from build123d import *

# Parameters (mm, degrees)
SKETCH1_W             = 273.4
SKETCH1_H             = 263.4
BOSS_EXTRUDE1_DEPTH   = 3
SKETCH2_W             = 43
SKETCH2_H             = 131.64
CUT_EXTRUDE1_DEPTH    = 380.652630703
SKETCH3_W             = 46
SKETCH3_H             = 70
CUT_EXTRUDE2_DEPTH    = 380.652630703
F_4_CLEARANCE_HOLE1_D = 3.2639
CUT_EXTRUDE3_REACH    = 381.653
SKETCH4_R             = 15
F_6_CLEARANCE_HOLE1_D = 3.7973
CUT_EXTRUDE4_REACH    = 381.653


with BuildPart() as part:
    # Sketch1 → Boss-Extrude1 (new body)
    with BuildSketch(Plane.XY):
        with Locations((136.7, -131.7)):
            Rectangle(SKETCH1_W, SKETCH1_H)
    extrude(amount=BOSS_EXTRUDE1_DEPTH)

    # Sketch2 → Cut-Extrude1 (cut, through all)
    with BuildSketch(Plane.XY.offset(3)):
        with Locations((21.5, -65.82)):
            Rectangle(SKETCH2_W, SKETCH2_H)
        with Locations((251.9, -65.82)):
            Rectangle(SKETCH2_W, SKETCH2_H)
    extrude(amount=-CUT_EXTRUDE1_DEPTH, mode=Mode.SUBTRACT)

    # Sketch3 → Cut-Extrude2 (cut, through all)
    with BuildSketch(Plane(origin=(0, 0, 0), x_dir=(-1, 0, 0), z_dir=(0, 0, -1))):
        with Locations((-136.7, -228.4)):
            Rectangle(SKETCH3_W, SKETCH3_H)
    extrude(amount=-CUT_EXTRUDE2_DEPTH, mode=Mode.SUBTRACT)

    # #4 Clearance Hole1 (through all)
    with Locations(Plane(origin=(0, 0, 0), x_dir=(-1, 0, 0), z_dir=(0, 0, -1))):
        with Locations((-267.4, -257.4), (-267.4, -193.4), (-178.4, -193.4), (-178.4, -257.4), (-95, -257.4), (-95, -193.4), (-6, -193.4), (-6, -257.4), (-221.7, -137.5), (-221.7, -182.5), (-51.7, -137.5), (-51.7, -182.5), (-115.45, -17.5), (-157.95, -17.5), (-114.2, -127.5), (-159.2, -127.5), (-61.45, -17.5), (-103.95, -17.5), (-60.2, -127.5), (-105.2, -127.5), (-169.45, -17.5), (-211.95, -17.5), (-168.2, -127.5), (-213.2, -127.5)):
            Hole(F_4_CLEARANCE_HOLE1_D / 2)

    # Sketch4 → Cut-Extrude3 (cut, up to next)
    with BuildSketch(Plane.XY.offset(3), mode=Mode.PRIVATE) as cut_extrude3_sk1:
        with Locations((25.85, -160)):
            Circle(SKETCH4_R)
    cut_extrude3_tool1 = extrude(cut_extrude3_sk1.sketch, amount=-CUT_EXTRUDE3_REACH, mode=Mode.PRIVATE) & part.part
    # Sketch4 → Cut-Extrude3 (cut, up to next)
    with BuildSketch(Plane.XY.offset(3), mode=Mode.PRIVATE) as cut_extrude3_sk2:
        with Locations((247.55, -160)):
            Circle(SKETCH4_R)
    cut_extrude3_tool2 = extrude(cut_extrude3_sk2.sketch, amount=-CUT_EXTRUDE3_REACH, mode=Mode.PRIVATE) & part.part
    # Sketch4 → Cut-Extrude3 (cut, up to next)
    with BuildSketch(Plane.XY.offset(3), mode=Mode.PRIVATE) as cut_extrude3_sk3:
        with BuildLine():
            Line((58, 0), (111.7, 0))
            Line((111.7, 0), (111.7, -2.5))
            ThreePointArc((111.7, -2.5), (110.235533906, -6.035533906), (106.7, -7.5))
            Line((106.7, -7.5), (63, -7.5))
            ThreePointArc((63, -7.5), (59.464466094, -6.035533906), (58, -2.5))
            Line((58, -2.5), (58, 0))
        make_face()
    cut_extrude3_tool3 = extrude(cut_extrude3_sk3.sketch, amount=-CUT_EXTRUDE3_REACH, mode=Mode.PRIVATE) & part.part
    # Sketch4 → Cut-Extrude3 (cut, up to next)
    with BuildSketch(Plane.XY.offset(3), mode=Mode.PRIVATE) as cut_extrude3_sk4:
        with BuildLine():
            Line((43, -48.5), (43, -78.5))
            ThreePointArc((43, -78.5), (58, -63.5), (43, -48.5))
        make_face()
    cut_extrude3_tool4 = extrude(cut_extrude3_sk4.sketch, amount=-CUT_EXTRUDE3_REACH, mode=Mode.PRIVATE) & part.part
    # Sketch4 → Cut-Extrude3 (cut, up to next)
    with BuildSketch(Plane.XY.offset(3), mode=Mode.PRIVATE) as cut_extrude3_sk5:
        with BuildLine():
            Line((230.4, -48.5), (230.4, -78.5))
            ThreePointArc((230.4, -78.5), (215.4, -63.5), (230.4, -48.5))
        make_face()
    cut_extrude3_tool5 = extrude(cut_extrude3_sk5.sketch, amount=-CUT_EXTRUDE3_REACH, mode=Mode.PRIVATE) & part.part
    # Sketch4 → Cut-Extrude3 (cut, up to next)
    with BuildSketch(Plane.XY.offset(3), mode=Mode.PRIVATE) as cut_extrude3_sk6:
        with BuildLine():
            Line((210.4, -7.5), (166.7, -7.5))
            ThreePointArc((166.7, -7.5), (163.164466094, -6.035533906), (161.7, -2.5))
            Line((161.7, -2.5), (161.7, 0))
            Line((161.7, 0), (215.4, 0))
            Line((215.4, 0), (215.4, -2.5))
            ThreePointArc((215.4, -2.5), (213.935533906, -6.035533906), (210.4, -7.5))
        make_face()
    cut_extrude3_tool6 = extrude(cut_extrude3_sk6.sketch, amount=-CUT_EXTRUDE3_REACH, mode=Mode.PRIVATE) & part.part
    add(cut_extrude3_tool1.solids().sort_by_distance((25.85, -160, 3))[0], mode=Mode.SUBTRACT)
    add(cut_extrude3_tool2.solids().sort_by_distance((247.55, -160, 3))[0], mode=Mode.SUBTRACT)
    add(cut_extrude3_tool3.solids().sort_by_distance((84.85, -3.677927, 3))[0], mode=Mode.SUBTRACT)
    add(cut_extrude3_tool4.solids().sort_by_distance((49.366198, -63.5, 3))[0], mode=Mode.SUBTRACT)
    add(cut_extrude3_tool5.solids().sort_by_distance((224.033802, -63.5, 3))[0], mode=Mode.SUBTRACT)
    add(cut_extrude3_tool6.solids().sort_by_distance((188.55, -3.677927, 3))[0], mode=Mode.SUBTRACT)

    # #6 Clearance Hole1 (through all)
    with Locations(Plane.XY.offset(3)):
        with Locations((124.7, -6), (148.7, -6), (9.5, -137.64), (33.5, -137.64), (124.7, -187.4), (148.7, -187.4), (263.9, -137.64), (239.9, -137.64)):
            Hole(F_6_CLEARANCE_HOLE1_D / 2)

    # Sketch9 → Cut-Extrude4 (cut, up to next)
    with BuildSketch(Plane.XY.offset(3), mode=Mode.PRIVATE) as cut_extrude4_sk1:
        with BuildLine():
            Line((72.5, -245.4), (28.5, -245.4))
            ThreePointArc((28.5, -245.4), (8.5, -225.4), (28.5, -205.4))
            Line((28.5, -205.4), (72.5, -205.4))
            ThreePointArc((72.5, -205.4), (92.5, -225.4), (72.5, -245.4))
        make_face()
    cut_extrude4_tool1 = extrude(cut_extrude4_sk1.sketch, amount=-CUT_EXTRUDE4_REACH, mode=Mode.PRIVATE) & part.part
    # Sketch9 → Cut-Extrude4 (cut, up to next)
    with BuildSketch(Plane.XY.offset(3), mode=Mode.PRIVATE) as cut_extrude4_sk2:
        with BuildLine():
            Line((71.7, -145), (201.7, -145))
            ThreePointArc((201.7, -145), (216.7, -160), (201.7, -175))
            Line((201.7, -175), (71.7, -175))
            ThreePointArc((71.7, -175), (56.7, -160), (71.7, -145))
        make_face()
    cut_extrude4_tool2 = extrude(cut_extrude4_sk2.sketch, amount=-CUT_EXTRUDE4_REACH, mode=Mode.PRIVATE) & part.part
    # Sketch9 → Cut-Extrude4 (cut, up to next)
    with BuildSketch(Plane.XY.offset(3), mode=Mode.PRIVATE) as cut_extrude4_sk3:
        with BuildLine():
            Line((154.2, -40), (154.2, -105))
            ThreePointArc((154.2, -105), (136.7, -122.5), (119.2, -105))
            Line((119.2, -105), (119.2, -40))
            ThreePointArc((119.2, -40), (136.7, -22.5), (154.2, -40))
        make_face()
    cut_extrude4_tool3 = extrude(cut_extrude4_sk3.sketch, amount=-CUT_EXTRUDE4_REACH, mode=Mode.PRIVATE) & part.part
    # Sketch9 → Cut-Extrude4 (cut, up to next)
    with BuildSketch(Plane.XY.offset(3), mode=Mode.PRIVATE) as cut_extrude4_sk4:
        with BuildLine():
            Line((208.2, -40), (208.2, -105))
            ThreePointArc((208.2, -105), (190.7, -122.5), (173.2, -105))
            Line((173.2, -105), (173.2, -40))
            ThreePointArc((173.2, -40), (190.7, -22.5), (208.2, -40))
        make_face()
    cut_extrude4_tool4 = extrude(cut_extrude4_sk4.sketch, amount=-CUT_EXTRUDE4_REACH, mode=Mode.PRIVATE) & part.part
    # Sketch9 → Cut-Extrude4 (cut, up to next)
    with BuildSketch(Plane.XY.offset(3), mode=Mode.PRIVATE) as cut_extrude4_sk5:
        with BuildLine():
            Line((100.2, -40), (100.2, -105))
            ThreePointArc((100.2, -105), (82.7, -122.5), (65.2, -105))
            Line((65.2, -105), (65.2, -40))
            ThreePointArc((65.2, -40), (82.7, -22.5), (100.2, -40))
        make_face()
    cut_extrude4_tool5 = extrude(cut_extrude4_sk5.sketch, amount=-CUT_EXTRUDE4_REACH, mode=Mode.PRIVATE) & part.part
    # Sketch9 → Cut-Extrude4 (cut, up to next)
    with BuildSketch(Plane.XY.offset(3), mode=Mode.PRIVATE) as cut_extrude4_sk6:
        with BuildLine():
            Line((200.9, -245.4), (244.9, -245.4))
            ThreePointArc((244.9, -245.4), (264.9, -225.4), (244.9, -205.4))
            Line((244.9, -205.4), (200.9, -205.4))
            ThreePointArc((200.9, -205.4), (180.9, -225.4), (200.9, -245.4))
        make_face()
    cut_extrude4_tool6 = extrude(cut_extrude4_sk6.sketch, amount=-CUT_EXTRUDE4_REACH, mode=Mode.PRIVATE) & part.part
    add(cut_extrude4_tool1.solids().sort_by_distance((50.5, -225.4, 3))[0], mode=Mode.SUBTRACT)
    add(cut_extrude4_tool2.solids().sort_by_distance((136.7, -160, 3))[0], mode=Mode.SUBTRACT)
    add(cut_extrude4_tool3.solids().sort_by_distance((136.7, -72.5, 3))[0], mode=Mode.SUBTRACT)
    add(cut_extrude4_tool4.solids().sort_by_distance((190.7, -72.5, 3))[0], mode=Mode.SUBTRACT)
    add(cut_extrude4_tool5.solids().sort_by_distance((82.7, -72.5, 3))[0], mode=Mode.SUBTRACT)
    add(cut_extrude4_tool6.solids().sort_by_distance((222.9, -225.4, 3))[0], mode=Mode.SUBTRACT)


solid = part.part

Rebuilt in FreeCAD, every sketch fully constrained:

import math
import FreeCAD as App
import Part
import Sketcher

V = App.Vector


def add_polygon(sketch, points):
    """Adds a closed chain of lines whose ends are joined by coincident constraints."""
    first, n = sketch.GeometryCount, len(points)
    for a, b in zip(points, points[1:] + points[:1]):
        sketch.addGeometry(Part.LineSegment(App.Vector(*a, 0), App.Vector(*b, 0)), False)
    for i in range(n):
        sketch.addConstraint(Sketcher.Constraint("Coincident", first + i, 2, first + (i + 1) % n, 1))

doc = App.newDocument("Part")
params = doc.addObject("Spreadsheet::Sheet", "Params")
for row, (alias, value) in enumerate([
    ("sketch1_width", "273.4 mm"),
    ("sketch1_height", "263.4 mm"),
    ("pad1_length", "3 mm"),
    ("sketch2_width", "43 mm"),
    ("sketch2_height", "131.64 mm"),
    ("sketch3_width", "46 mm"),
    ("sketch3_height", "70 mm"),
    ("hole_diameter", "3.2639 mm"),
    ("sketch5_diameter", "30 mm"),
    ("sketch6_diameter", "30 mm"),
    ("sketch7_radius", "5 mm"),
    ("sketch7_width", "53.7 mm"),
    ("sketch7_height", "2.5 mm"),
    ("sketch8_radius", "15 mm"),
    ("sketch9_radius", "15 mm"),
    ("sketch10_radius", "5 mm"),
    ("sketch10_width", "43.7 mm"),
    ("sketch10_height", "2.5 mm"),
    ("hole2_diameter", "3.7973 mm"),
    ("sketch12_radius", "20 mm"),
    ("sketch12_width", "44 mm"),
    ("sketch13_radius", "15 mm"),
    ("sketch13_width", "130 mm"),
    ("sketch14_radius", "17.5 mm"),
    ("sketch14_height", "65 mm"),
    ("sketch15_radius", "17.5 mm"),
    ("sketch15_height", "65 mm"),
    ("sketch16_radius", "17.5 mm"),
    ("sketch16_height", "65 mm"),
    ("sketch17_radius", "20 mm"),
    ("sketch17_width", "44 mm"),
], start=1):
    params.set(f"A{row}", alias)
    params.set(f"B{row}", "=" + value)
    params.setAlias(f"B{row}", alias)

body = doc.addObject("PartDesign::Body", "Body")

# Sketch on XY plane
sketch1 = body.newObject("Sketcher::SketchObject", "Sketch")
sketch1.AttachmentSupport = (doc.getObject("XY_Plane"), [""])
sketch1.MapMode = "FlatFace"
add_polygon(sketch1, [(0, 0), (0, -263), (273, -263), (273, 0)])  # lines 0-3
sketch1.addConstraint([
    Sketcher.Constraint("Vertical", 0),
    Sketcher.Constraint("Horizontal", 1),
    Sketcher.Constraint("Vertical", 2),
    Sketcher.Constraint("Horizontal", 3),
    Sketcher.Constraint("Coincident", 3, 2, -1, 1),
    Sketcher.Constraint("DistanceX", 1, 1, 1, 2, 273.4),
    Sketcher.Constraint("DistanceY", 0, 2, 0, 1, 263.4),
])
sketch1.setExpression("Constraints[9]", "Params.sketch1_width")
sketch1.setExpression("Constraints[10]", "Params.sketch1_height")
pad1 = body.newObject("PartDesign::Pad", "Pad")
pad1.Profile = sketch1
pad1.setExpression("Length", "Params.pad1_length")

# Sketch on XY plane
sketch2 = body.newObject("Sketcher::SketchObject", "Sketch001")
sketch2.AttachmentSupport = (doc.getObject("XY_Plane"), [""])
sketch2.MapMode = "FlatFace"
sketch2.AttachmentOffset = App.Placement(V(0, 0, 3), App.Rotation())
add_polygon(sketch2, [(0, 0), (0, -132), (43, -132), (43, 0)])  # lines 0-3
add_polygon(sketch2, [(230, 0), (230, -132), (273, -132), (273, 0)])  # lines 4-7
sketch2.addConstraint([
    Sketcher.Constraint("Vertical", 0),
    Sketcher.Constraint("Horizontal", 1),
    Sketcher.Constraint("Vertical", 2),
    Sketcher.Constraint("Horizontal", 3),
    Sketcher.Constraint("Vertical", 4),
    Sketcher.Constraint("Horizontal", 5),
    Sketcher.Constraint("Vertical", 6),
    Sketcher.Constraint("Horizontal", 7),
    Sketcher.Constraint("Coincident", 3, 2, -1, 1),
    Sketcher.Constraint("PointOnObject", 6, 2, -1),
    Sketcher.Constraint("Horizontal", 1, 2, 4, 2),
    Sketcher.Constraint("Equal", 3, 5),
    Sketcher.Constraint("DistanceX", 1, 1, 1, 2, 43.0),
    Sketcher.Constraint("DistanceY", 0, 2, 0, 1, 131.64),
    Sketcher.Constraint("DistanceX", -1, 1, 4, 2, 230.4),
])
sketch2.setExpression("Constraints[20]", "Params.sketch2_width")
sketch2.setExpression("Constraints[21]", "Params.sketch2_height")
pocket1 = body.newObject("PartDesign::Pocket", "Pocket")
pocket1.Profile = sketch2
pocket1.Type = "ThroughAll"

# Sketch on XY plane
sketch3 = body.newObject("Sketcher::SketchObject", "Sketch002")
sketch3.AttachmentSupport = (doc.getObject("XY_Plane"), [""])
sketch3.MapMode = "FlatFace"
add_polygon(sketch3, [(160, -193), (160, -263), (114, -263), (114, -193)])  # lines 0-3
sketch3.addConstraint([
    Sketcher.Constraint("Vertical", 0),
    Sketcher.Constraint("Horizontal", 1),
    Sketcher.Constraint("Vertical", 2),
    Sketcher.Constraint("Horizontal", 3),
    Sketcher.Constraint("DistanceX", 1, 2, 1, 1, 46.0),
    Sketcher.Constraint("DistanceY", 0, 2, 0, 1, 70.0),
    Sketcher.Constraint("DistanceX", -1, 1, 0, 2, 159.7),
    Sketcher.Constraint("DistanceY", 0, 2, -1, 1, 263.4),
])
sketch3.setExpression("Constraints[8]", "Params.sketch3_width")
sketch3.setExpression("Constraints[9]", "Params.sketch3_height")
pocket2 = body.newObject("PartDesign::Pocket", "Pocket001")
pocket2.Profile = sketch3
pocket2.Type = "ThroughAll"
pocket2.Reversed = True

# Sketch on XY plane
sketch4 = body.newObject("Sketcher::SketchObject", "Sketch003")
sketch4.AttachmentSupport = (doc.getObject("XY_Plane"), [""])
sketch4.MapMode = "FlatFace"
sketch4.addGeometry([
    Part.Circle(V(267.4, -257.4, 0), V(0, 0, 1), 1.6),  # 0
    Part.Circle(V(267.4, -193.4, 0), V(0, 0, 1), 1.6),  # 1
    Part.Circle(V(178.4, -193.4, 0), V(0, 0, 1), 1.6),  # 2
    Part.Circle(V(178.4, -257.4, 0), V(0, 0, 1), 1.6),  # 3
    Part.Circle(V(95, -257.4, 0), V(0, 0, 1), 1.6),  # 4
    Part.Circle(V(95, -193.4, 0), V(0, 0, 1), 1.6),  # 5
    Part.Circle(V(6, -193.4, 0), V(0, 0, 1), 1.6),  # 6
    Part.Circle(V(6, -257.4, 0), V(0, 0, 1), 1.6),  # 7
    Part.Circle(V(221.7, -137.5, 0), V(0, 0, 1), 1.6),  # 8
    Part.Circle(V(221.7, -182.5, 0), V(0, 0, 1), 1.6),  # 9
    Part.Circle(V(51.7, -137.5, 0), V(0, 0, 1), 1.6),  # 10
    Part.Circle(V(51.7, -182.5, 0), V(0, 0, 1), 1.6),  # 11
    Part.Circle(V(115.5, -17.5, 0), V(0, 0, 1), 1.6),  # 12
    Part.Circle(V(157.9, -17.5, 0), V(0, 0, 1), 1.6),  # 13
    Part.Circle(V(114.2, -127.5, 0), V(0, 0, 1), 1.6),  # 14
    Part.Circle(V(159.2, -127.5, 0), V(0, 0, 1), 1.6),  # 15
    Part.Circle(V(61.5, -17.5, 0), V(0, 0, 1), 1.6),  # 16
    Part.Circle(V(104, -17.5, 0), V(0, 0, 1), 1.6),  # 17
    Part.Circle(V(60.2, -127.5, 0), V(0, 0, 1), 1.6),  # 18
    Part.Circle(V(105.2, -127.5, 0), V(0, 0, 1), 1.6),  # 19
    Part.Circle(V(169.4, -17.5, 0), V(0, 0, 1), 1.6),  # 20
    Part.Circle(V(211.9, -17.5, 0), V(0, 0, 1), 1.6),  # 21
    Part.Circle(V(168.2, -127.5, 0), V(0, 0, 1), 1.6),  # 22
    Part.Circle(V(213.2, -127.5, 0), V(0, 0, 1), 1.6),  # 23
], False)
sketch4.addConstraint([
    Sketcher.Constraint("Equal", 0, 1),
    Sketcher.Constraint("Equal", 1, 2),
    Sketcher.Constraint("Equal", 2, 3),
    Sketcher.Constraint("Equal", 3, 4),
    Sketcher.Constraint("Equal", 4, 5),
    Sketcher.Constraint("Equal", 5, 6),
    Sketcher.Constraint("Equal", 6, 7),
    Sketcher.Constraint("Equal", 7, 8),
    Sketcher.Constraint("Equal", 8, 9),
    Sketcher.Constraint("Equal", 9, 10),
    Sketcher.Constraint("Equal", 10, 11),
    Sketcher.Constraint("Equal", 11, 12),
    Sketcher.Constraint("Equal", 12, 13),
    Sketcher.Constraint("Equal", 13, 14),
    Sketcher.Constraint("Equal", 14, 15),
    Sketcher.Constraint("Equal", 15, 16),
    Sketcher.Constraint("Equal", 16, 17),
    Sketcher.Constraint("Equal", 17, 18),
    Sketcher.Constraint("Equal", 18, 19),
    Sketcher.Constraint("Equal", 19, 20),
    Sketcher.Constraint("Equal", 20, 21),
    Sketcher.Constraint("Equal", 21, 22),
    Sketcher.Constraint("Equal", 22, 23),
    Sketcher.Constraint("Horizontal", 1, 3, 2, 3),
    Sketcher.Constraint("Horizontal", 0, 3, 3, 3),
    Sketcher.Constraint("Horizontal", 3, 3, 4, 3),
    Sketcher.Constraint("Horizontal", 2, 3, 5, 3),
    Sketcher.Constraint("Horizontal", 5, 3, 6, 3),
    Sketcher.Constraint("Horizontal", 4, 3, 7, 3),
    Sketcher.Constraint("Horizontal", 8, 3, 10, 3),
    Sketcher.Constraint("Horizontal", 9, 3, 11, 3),
    Sketcher.Constraint("Horizontal", 12, 3, 13, 3),
    Sketcher.Constraint("Horizontal", 14, 3, 15, 3),
    Sketcher.Constraint("Horizontal", 13, 3, 16, 3),
    Sketcher.Constraint("Horizontal", 16, 3, 17, 3),
    Sketcher.Constraint("Horizontal", 15, 3, 18, 3),
    Sketcher.Constraint("Horizontal", 18, 3, 19, 3),
    Sketcher.Constraint("Horizontal", 17, 3, 20, 3),
    Sketcher.Constraint("Horizontal", 20, 3, 21, 3),
    Sketcher.Constraint("Horizontal", 19, 3, 22, 3),
    Sketcher.Constraint("Horizontal", 22, 3, 23, 3),
    Sketcher.Constraint("Vertical", 0, 3, 1, 3),
    Sketcher.Constraint("Vertical", 2, 3, 3, 3),
    Sketcher.Constraint("Vertical", 4, 3, 5, 3),
    Sketcher.Constraint("Vertical", 6, 3, 7, 3),
    Sketcher.Constraint("Vertical", 8, 3, 9, 3),
    Sketcher.Constraint("Vertical", 10, 3, 11, 3),
    Sketcher.Constraint("DistanceX", -1, 1, 4, 3, 95.0),
    Sketcher.Constraint("DistanceX", -1, 1, 6, 3, 6.0),
    Sketcher.Constraint("DistanceY", 0, 3, 1, 3, 64.0),
    Sketcher.Constraint("DistanceX", 2, 3, 1, 3, 89.0),
    Sketcher.Constraint("DistanceY", 9, 3, 8, 3, 45.0),
    Sketcher.Constraint("DistanceY", 10, 3, 12, 3, 120.0),
    Sketcher.Constraint("DistanceY", 10, 3, 14, 3, 10.0),
    Sketcher.Constraint("DistanceX", 14, 3, 15, 3, 45.0),
    Sketcher.Constraint("DistanceX", 16, 3, 12, 3, 54.0),
    Sketcher.Constraint("DistanceX", 17, 3, 13, 3, 54.0),
    Sketcher.Constraint("DistanceX", 18, 3, 14, 3, 54.0),
    Sketcher.Constraint("DistanceX", 19, 3, 14, 3, 9.0),
    Sketcher.Constraint("DistanceX", 12, 3, 20, 3, 54.0),
    Sketcher.Constraint("DistanceX", 13, 3, 21, 3, 54.0),
    Sketcher.Constraint("DistanceX", 15, 3, 22, 3, 9.0),
    Sketcher.Constraint("DistanceX", 22, 3, 23, 3, 45.0),
    Sketcher.Constraint("Diameter", 0, 3.2639),
    Sketcher.Constraint("DistanceX", -1, 1, 0, 3, 267.4),
    Sketcher.Constraint("DistanceY", 0, 3, -1, 1, 257.4),
    Sketcher.Constraint("DistanceX", -1, 1, 8, 3, 221.7),
    Sketcher.Constraint("DistanceY", 8, 3, -1, 1, 137.5),
    Sketcher.Constraint("DistanceX", -1, 1, 10, 3, 51.7),
    Sketcher.Constraint("DistanceX", -1, 1, 14, 3, 114.2),
    Sketcher.Constraint("DistanceX", 12, 3, 13, 3, 42.5),
    Sketcher.Constraint("DistanceX", -1, 1, 12, 3, 115.45),
])
doc.recompute()
hole = body.newObject("PartDesign::Hole", "Hole")
hole.Profile = sketch4
hole.ThreadType = "None"
hole.setExpression("Diameter", "Params.hole_diameter")
hole.DepthType = "ThroughAll"
hole.Reversed = True

# Sketch on XY plane
sketch5 = body.newObject("Sketcher::SketchObject", "Sketch004")
sketch5.AttachmentSupport = (doc.getObject("XY_Plane"), [""])
sketch5.MapMode = "FlatFace"
sketch5.AttachmentOffset = App.Placement(V(0, 0, 3), App.Rotation())
sketch5.addGeometry(Part.Circle(V(26, -160, 0), V(0, 0, 1), 15), False)
sketch5.addConstraint([
    Sketcher.Constraint("Diameter", 0, 30.0),
    Sketcher.Constraint("DistanceY", 0, 3, -1, 1, 160.0),
    Sketcher.Constraint("DistanceX", -1, 1, 0, 3, 25.85),
])
sketch5.setExpression("Constraints[0]", "Params.sketch5_diameter")
pocket3 = body.newObject("PartDesign::Pocket", "Pocket002")
pocket3.Profile = sketch5
pocket3.Type = "UpToFirst"

# Sketch on XY plane
sketch6 = body.newObject("Sketcher::SketchObject", "Sketch005")
sketch6.AttachmentSupport = (doc.getObject("XY_Plane"), [""])
sketch6.MapMode = "FlatFace"
sketch6.AttachmentOffset = App.Placement(V(0, 0, 3), App.Rotation())
sketch6.addGeometry(Part.Circle(V(248, -160, 0), V(0, 0, 1), 15), False)
sketch6.addConstraint([
    Sketcher.Constraint("Diameter", 0, 30.0),
    Sketcher.Constraint("DistanceY", 0, 3, -1, 1, 160.0),
    Sketcher.Constraint("DistanceX", -1, 1, 0, 3, 247.55),
])
sketch6.setExpression("Constraints[0]", "Params.sketch6_diameter")
pocket4 = body.newObject("PartDesign::Pocket", "Pocket003")
pocket4.Profile = sketch6
pocket4.Type = "UpToFirst"

# Sketch on XY plane
sketch7 = body.newObject("Sketcher::SketchObject", "Sketch006")
sketch7.AttachmentSupport = (doc.getObject("XY_Plane"), [""])
sketch7.MapMode = "FlatFace"
sketch7.AttachmentOffset = App.Placement(V(0, 0, 3), App.Rotation())
sketch7.addGeometry([
    Part.LineSegment(V(111.7, 0, 0), V(58, 0, 0)),  # 0
    Part.LineSegment(V(58, 0, 0), V(58, -2.5, 0)),  # 1
    Part.ArcOfCircle(Part.Circle(V(63, -2.5, 0), V(0, 0, 1), 5), math.radians(180), math.radians(270)),  # 2
    Part.LineSegment(V(63, -7.5, 0), V(106.7, -7.5, 0)),  # 3
    Part.ArcOfCircle(Part.Circle(V(106.7, -2.5, 0), V(0, 0, 1), 5), math.radians(-90), math.radians(0)),  # 4
    Part.LineSegment(V(111.7, -2.5, 0), V(111.7, 0, 0)),  # 5
], False)
sketch7.addConstraint([
    Sketcher.Constraint("Coincident", 0, 2, 1, 1),
    Sketcher.Constraint("Tangent", 1, 2, 2, 1),
    Sketcher.Constraint("Tangent", 2, 2, 3, 1),
    Sketcher.Constraint("Tangent", 3, 2, 4, 1),
    Sketcher.Constraint("Tangent", 4, 2, 5, 1),
    Sketcher.Constraint("Coincident", 5, 2, 0, 1),
    Sketcher.Constraint("Horizontal", 0),
    Sketcher.Constraint("Vertical", 1),
    Sketcher.Constraint("Horizontal", 3),
    Sketcher.Constraint("Vertical", 5),
    Sketcher.Constraint("Equal", 2, 4),
    Sketcher.Constraint("PointOnObject", 0, 2, -1),
    Sketcher.Constraint("Radius", 2, 5.0),
    Sketcher.Constraint("DistanceX", 0, 2, 0, 1, 53.7),
    Sketcher.Constraint("DistanceY", 1, 2, 1, 1, 2.5),
    Sketcher.Constraint("DistanceX", -1, 1, 2, 3, 63.0),
])
sketch7.setExpression("Constraints[12]", "Params.sketch7_radius")
sketch7.setExpression("Constraints[13]", "Params.sketch7_width")
sketch7.setExpression("Constraints[14]", "Params.sketch7_height")
pocket5 = body.newObject("PartDesign::Pocket", "Pocket004")
pocket5.Profile = sketch7
pocket5.Type = "UpToFirst"

# Sketch on XY plane
sketch8 = body.newObject("Sketcher::SketchObject", "Sketch007")
sketch8.AttachmentSupport = (doc.getObject("XY_Plane"), [""])
sketch8.MapMode = "FlatFace"
sketch8.AttachmentOffset = App.Placement(V(0, 0, 3), App.Rotation())
sketch8.addGeometry([
    Part.LineSegment(V(43, -48, 0), V(43, -78, 0)),
    Part.ArcOfCircle(Part.Circle(V(43, -64, 0), V(0, 0, 1), 15), math.radians(-90), math.radians(90)),
], False)
sketch8.addConstraint([
    Sketcher.Constraint("Coincident", 0, 1, 1, 2),
    Sketcher.Constraint("Coincident", 1, 1, 0, 2),
    Sketcher.Constraint("Vertical", 0),
    Sketcher.Constraint("Vertical", 1, 3, 0, 1),
    Sketcher.Constraint("Radius", 1, 15.0),
    Sketcher.Constraint("DistanceX", -1, 1, 1, 3, 43.0),
    Sketcher.Constraint("DistanceY", 1, 3, -1, 1, 63.5),
])
sketch8.setExpression("Constraints[4]", "Params.sketch8_radius")
pocket6 = body.newObject("PartDesign::Pocket", "Pocket005")
pocket6.Profile = sketch8
pocket6.Type = "UpToFirst"

# Sketch on XY plane
sketch9 = body.newObject("Sketcher::SketchObject", "Sketch008")
sketch9.AttachmentSupport = (doc.getObject("XY_Plane"), [""])
sketch9.MapMode = "FlatFace"
sketch9.AttachmentOffset = App.Placement(V(0, 0, 3), App.Rotation())
sketch9.addGeometry([
    Part.LineSegment(V(230, -78, 0), V(230, -48, 0)),
    Part.ArcOfCircle(Part.Circle(V(230, -64, 0), V(0, 0, 1), 15), math.radians(90), math.radians(270)),
], False)
sketch9.addConstraint([
    Sketcher.Constraint("Coincident", 0, 1, 1, 2),
    Sketcher.Constraint("Coincident", 1, 1, 0, 2),
    Sketcher.Constraint("Vertical", 0),
    Sketcher.Constraint("Vertical", 1, 3, 0, 1),
    Sketcher.Constraint("Radius", 1, 15.0),
    Sketcher.Constraint("DistanceX", -1, 1, 1, 3, 230.4),
    Sketcher.Constraint("DistanceY", 1, 3, -1, 1, 63.5),
])
sketch9.setExpression("Constraints[4]", "Params.sketch9_radius")
pocket7 = body.newObject("PartDesign::Pocket", "Pocket006")
pocket7.Profile = sketch9
pocket7.Type = "UpToFirst"

# Sketch on XY plane
sketch10 = body.newObject("Sketcher::SketchObject", "Sketch009")
sketch10.AttachmentSupport = (doc.getObject("XY_Plane"), [""])
sketch10.MapMode = "FlatFace"
sketch10.AttachmentOffset = App.Placement(V(0, 0, 3), App.Rotation())
sketch10.addGeometry([
    Part.LineSegment(V(166.7, -7.5, 0), V(210.4, -7.5, 0)),  # 0
    Part.ArcOfCircle(Part.Circle(V(210.4, -2.5, 0), V(0, 0, 1), 5), math.radians(-90), math.radians(0)),  # 1
    Part.LineSegment(V(215.4, -2.5, 0), V(215.4, 0, 0)),  # 2
    Part.LineSegment(V(215.4, 0, 0), V(161.7, 0, 0)),  # 3
    Part.LineSegment(V(161.7, 0, 0), V(161.7, -2.5, 0)),  # 4
    Part.ArcOfCircle(Part.Circle(V(166.7, -2.5, 0), V(0, 0, 1), 5), math.radians(180), math.radians(270)),  # 5
], False)
sketch10.addConstraint([
    Sketcher.Constraint("Tangent", 0, 2, 1, 1),
    Sketcher.Constraint("Tangent", 1, 2, 2, 1),
    Sketcher.Constraint("Coincident", 2, 2, 3, 1),
    Sketcher.Constraint("Coincident", 3, 2, 4, 1),
    Sketcher.Constraint("Tangent", 4, 2, 5, 1),
    Sketcher.Constraint("Tangent", 5, 2, 0, 1),
    Sketcher.Constraint("Horizontal", 0),
    Sketcher.Constraint("Vertical", 2),
    Sketcher.Constraint("Horizontal", 3),
    Sketcher.Constraint("Vertical", 4),
    Sketcher.Constraint("Equal", 1, 5),
    Sketcher.Constraint("PointOnObject", 2, 2, -1),
    Sketcher.Constraint("Radius", 1, 5.0),
    Sketcher.Constraint("DistanceX", 0, 1, 0, 2, 43.7),
    Sketcher.Constraint("DistanceY", 2, 1, 2, 2, 2.5),
    Sketcher.Constraint("DistanceX", -1, 1, 1, 3, 210.4),
])
sketch10.setExpression("Constraints[12]", "Params.sketch10_radius")
sketch10.setExpression("Constraints[13]", "Params.sketch10_width")
sketch10.setExpression("Constraints[14]", "Params.sketch10_height")
pocket8 = body.newObject("PartDesign::Pocket", "Pocket007")
pocket8.Profile = sketch10
pocket8.Type = "UpToFirst"

# Sketch on XY plane
sketch11 = body.newObject("Sketcher::SketchObject", "Sketch010")
sketch11.AttachmentSupport = (doc.getObject("XY_Plane"), [""])
sketch11.MapMode = "FlatFace"
sketch11.AttachmentOffset = App.Placement(V(0, 0, 3), App.Rotation())
sketch11.addGeometry([
    Part.Circle(V(124.7, -6, 0), V(0, 0, 1), 1.9),  # 0
    Part.Circle(V(148.7, -6, 0), V(0, 0, 1), 1.9),  # 1
    Part.Circle(V(9.5, -137.6, 0), V(0, 0, 1), 1.9),  # 2
    Part.Circle(V(33.5, -137.6, 0), V(0, 0, 1), 1.9),  # 3
    Part.Circle(V(124.7, -187.4, 0), V(0, 0, 1), 1.9),  # 4
    Part.Circle(V(148.7, -187.4, 0), V(0, 0, 1), 1.9),  # 5
    Part.Circle(V(263.9, -137.6, 0), V(0, 0, 1), 1.9),  # 6
    Part.Circle(V(239.9, -137.6, 0), V(0, 0, 1), 1.9),  # 7
], False)
sketch11.addConstraint([
    Sketcher.Constraint("Equal", 0, 1),
    Sketcher.Constraint("Equal", 1, 2),
    Sketcher.Constraint("Equal", 2, 3),
    Sketcher.Constraint("Equal", 3, 4),
    Sketcher.Constraint("Equal", 4, 5),
    Sketcher.Constraint("Equal", 5, 6),
    Sketcher.Constraint("Equal", 6, 7),
    Sketcher.Constraint("Horizontal", 0, 3, 1, 3),
    Sketcher.Constraint("Horizontal", 2, 3, 3, 3),
    Sketcher.Constraint("Horizontal", 4, 3, 5, 3),
    Sketcher.Constraint("Horizontal", 3, 3, 6, 3),
    Sketcher.Constraint("Horizontal", 6, 3, 7, 3),
    Sketcher.Constraint("Vertical", 0, 3, 4, 3),
    Sketcher.Constraint("Vertical", 1, 3, 5, 3),
    Sketcher.Constraint("DistanceY", 0, 3, -1, 1, 6.0),
    Sketcher.Constraint("DistanceX", 0, 3, 1, 3, 24.0),
    Sketcher.Constraint("DistanceX", 2, 3, 3, 3, 24.0),
    Sketcher.Constraint("DistanceX", 7, 3, 6, 3, 24.0),
    Sketcher.Constraint("Diameter", 0, 3.7973),
    Sketcher.Constraint("DistanceX", -1, 1, 0, 3, 124.7),
    Sketcher.Constraint("DistanceX", -1, 1, 2, 3, 9.5),
    Sketcher.Constraint("DistanceY", 4, 3, -1, 1, 187.4),
    Sketcher.Constraint("DistanceX", -1, 1, 6, 3, 263.9),
    Sketcher.Constraint("DistanceY", 2, 3, -1, 1, 137.64),
])
doc.recompute()
hole2 = body.newObject("PartDesign::Hole", "Hole001")
hole2.Profile = sketch11
hole2.ThreadType = "None"
hole2.setExpression("Diameter", "Params.hole2_diameter")
hole2.DepthType = "ThroughAll"

# Sketch on XY plane
sketch12 = body.newObject("Sketcher::SketchObject", "Sketch011")
sketch12.AttachmentSupport = (doc.getObject("XY_Plane"), [""])
sketch12.MapMode = "FlatFace"
sketch12.AttachmentOffset = App.Placement(V(0, 0, 3), App.Rotation())
sketch12.addGeometry([
    Part.LineSegment(V(28, -245, 0), V(72, -245, 0)),
    Part.ArcOfCircle(Part.Circle(V(72, -225, 0), V(0, 0, 1), 20), math.radians(-90), math.radians(90)),
    Part.LineSegment(V(72, -205, 0), V(28, -205, 0)),
    Part.ArcOfCircle(Part.Circle(V(28, -225, 0), V(0, 0, 1), 20), math.radians(90), math.radians(270)),
], False)
sketch12.addConstraint([
    Sketcher.Constraint("Tangent", 0, 2, 1, 1),
    Sketcher.Constraint("Tangent", 1, 2, 2, 1),
    Sketcher.Constraint("Tangent", 2, 2, 3, 1),
    Sketcher.Constraint("Tangent", 3, 2, 0, 1),
    Sketcher.Constraint("Horizontal", 0),
    Sketcher.Constraint("Horizontal", 2),
    Sketcher.Constraint("Radius", 1, 20.0),
    Sketcher.Constraint("DistanceX", 0, 1, 0, 2, 44.0),
    Sketcher.Constraint("DistanceX", -1, 1, 1, 3, 72.5),
    Sketcher.Constraint("DistanceY", 1, 3, -1, 1, 225.4),
])
sketch12.setExpression("Constraints[6]", "Params.sketch12_radius")
sketch12.setExpression("Constraints[7]", "Params.sketch12_width")
pocket9 = body.newObject("PartDesign::Pocket", "Pocket008")
pocket9.Profile = sketch12
pocket9.Type = "UpToFirst"

# Sketch on XY plane
sketch13 = body.newObject("Sketcher::SketchObject", "Sketch012")
sketch13.AttachmentSupport = (doc.getObject("XY_Plane"), [""])
sketch13.MapMode = "FlatFace"
sketch13.AttachmentOffset = App.Placement(V(0, 0, 3), App.Rotation())
sketch13.addGeometry([
    Part.LineSegment(V(202, -145, 0), V(72, -145, 0)),
    Part.ArcOfCircle(Part.Circle(V(72, -160, 0), V(0, 0, 1), 15), math.radians(90), math.radians(270)),
    Part.LineSegment(V(72, -175, 0), V(202, -175, 0)),
    Part.ArcOfCircle(Part.Circle(V(202, -160, 0), V(0, 0, 1), 15), math.radians(-90), math.radians(90)),
], False)
sketch13.addConstraint([
    Sketcher.Constraint("Tangent", 0, 2, 1, 1),
    Sketcher.Constraint("Tangent", 1, 2, 2, 1),
    Sketcher.Constraint("Tangent", 2, 2, 3, 1),
    Sketcher.Constraint("Tangent", 3, 2, 0, 1),
    Sketcher.Constraint("Horizontal", 0),
    Sketcher.Constraint("Horizontal", 2),
    Sketcher.Constraint("Radius", 1, 15.0),
    Sketcher.Constraint("DistanceX", 0, 2, 0, 1, 130.0),
    Sketcher.Constraint("DistanceY", 1, 3, -1, 1, 160.0),
    Sketcher.Constraint("DistanceX", -1, 1, 1, 3, 71.7),
])
sketch13.setExpression("Constraints[6]", "Params.sketch13_radius")
sketch13.setExpression("Constraints[7]", "Params.sketch13_width")
pocket10 = body.newObject("PartDesign::Pocket", "Pocket009")
pocket10.Profile = sketch13
pocket10.Type = "UpToFirst"

# Sketch on XY plane
sketch14 = body.newObject("Sketcher::SketchObject", "Sketch013")
sketch14.AttachmentSupport = (doc.getObject("XY_Plane"), [""])
sketch14.MapMode = "FlatFace"
sketch14.AttachmentOffset = App.Placement(V(0, 0, 3), App.Rotation())
sketch14.addGeometry([
    Part.LineSegment(V(154, -105, 0), V(154, -40, 0)),
    Part.ArcOfCircle(Part.Circle(V(137, -40, 0), V(0, 0, 1), 18), math.radians(0), math.radians(180)),
    Part.LineSegment(V(119, -40, 0), V(119, -105, 0)),
    Part.ArcOfCircle(Part.Circle(V(137, -105, 0), V(0, 0, 1), 18), math.radians(180), math.radians(360)),
], False)
sketch14.addConstraint([
    Sketcher.Constraint("Tangent", 0, 2, 1, 1),
    Sketcher.Constraint("Tangent", 1, 2, 2, 1),
    Sketcher.Constraint("Tangent", 2, 2, 3, 1),
    Sketcher.Constraint("Tangent", 3, 2, 0, 1),
    Sketcher.Constraint("Vertical", 0),
    Sketcher.Constraint("Vertical", 2),
    Sketcher.Constraint("Radius", 1, 17.5),
    Sketcher.Constraint("DistanceY", 0, 1, 0, 2, 65.0),
    Sketcher.Constraint("DistanceY", 1, 3, -1, 1, 40.0),
    Sketcher.Constraint("DistanceX", -1, 1, 1, 3, 136.7),
])
sketch14.setExpression("Constraints[6]", "Params.sketch14_radius")
sketch14.setExpression("Constraints[7]", "Params.sketch14_height")
pocket11 = body.newObject("PartDesign::Pocket", "Pocket010")
pocket11.Profile = sketch14
pocket11.Type = "UpToFirst"

# Sketch on XY plane
sketch15 = body.newObject("Sketcher::SketchObject", "Sketch014")
sketch15.AttachmentSupport = (doc.getObject("XY_Plane"), [""])
sketch15.MapMode = "FlatFace"
sketch15.AttachmentOffset = App.Placement(V(0, 0, 3), App.Rotation())
sketch15.addGeometry([
    Part.LineSegment(V(208, -105, 0), V(208, -40, 0)),
    Part.ArcOfCircle(Part.Circle(V(191, -40, 0), V(0, 0, 1), 18), math.radians(0), math.radians(180)),
    Part.LineSegment(V(173, -40, 0), V(173, -105, 0)),
    Part.ArcOfCircle(Part.Circle(V(191, -105, 0), V(0, 0, 1), 18), math.radians(180), math.radians(360)),
], False)
sketch15.addConstraint([
    Sketcher.Constraint("Tangent", 0, 2, 1, 1),
    Sketcher.Constraint("Tangent", 1, 2, 2, 1),
    Sketcher.Constraint("Tangent", 2, 2, 3, 1),
    Sketcher.Constraint("Tangent", 3, 2, 0, 1),
    Sketcher.Constraint("Vertical", 0),
    Sketcher.Constraint("Vertical", 2),
    Sketcher.Constraint("Radius", 1, 17.5),
    Sketcher.Constraint("DistanceY", 0, 1, 0, 2, 65.0),
    Sketcher.Constraint("DistanceY", 1, 3, -1, 1, 40.0),
    Sketcher.Constraint("DistanceX", -1, 1, 1, 3, 190.7),
])
sketch15.setExpression("Constraints[6]", "Params.sketch15_radius")
sketch15.setExpression("Constraints[7]", "Params.sketch15_height")
pocket12 = body.newObject("PartDesign::Pocket", "Pocket011")
pocket12.Profile = sketch15
pocket12.Type = "UpToFirst"

# Sketch on XY plane
sketch16 = body.newObject("Sketcher::SketchObject", "Sketch015")
sketch16.AttachmentSupport = (doc.getObject("XY_Plane"), [""])
sketch16.MapMode = "FlatFace"
sketch16.AttachmentOffset = App.Placement(V(0, 0, 3), App.Rotation())
sketch16.addGeometry([
    Part.LineSegment(V(100, -105, 0), V(100, -40, 0)),
    Part.ArcOfCircle(Part.Circle(V(83, -40, 0), V(0, 0, 1), 18), math.radians(0), math.radians(180)),
    Part.LineSegment(V(65, -40, 0), V(65, -105, 0)),
    Part.ArcOfCircle(Part.Circle(V(83, -105, 0), V(0, 0, 1), 18), math.radians(180), math.radians(360)),
], False)
sketch16.addConstraint([
    Sketcher.Constraint("Tangent", 0, 2, 1, 1),
    Sketcher.Constraint("Tangent", 1, 2, 2, 1),
    Sketcher.Constraint("Tangent", 2, 2, 3, 1),
    Sketcher.Constraint("Tangent", 3, 2, 0, 1),
    Sketcher.Constraint("Vertical", 0),
    Sketcher.Constraint("Vertical", 2),
    Sketcher.Constraint("Radius", 1, 17.5),
    Sketcher.Constraint("DistanceY", 0, 1, 0, 2, 65.0),
    Sketcher.Constraint("DistanceY", 1, 3, -1, 1, 40.0),
    Sketcher.Constraint("DistanceX", -1, 1, 1, 3, 82.7),
])
sketch16.setExpression("Constraints[6]", "Params.sketch16_radius")
sketch16.setExpression("Constraints[7]", "Params.sketch16_height")
pocket13 = body.newObject("PartDesign::Pocket", "Pocket012")
pocket13.Profile = sketch16
pocket13.Type = "UpToFirst"

# Sketch on XY plane
sketch17 = body.newObject("Sketcher::SketchObject", "Sketch016")
sketch17.AttachmentSupport = (doc.getObject("XY_Plane"), [""])
sketch17.MapMode = "FlatFace"
sketch17.AttachmentOffset = App.Placement(V(0, 0, 3), App.Rotation())
sketch17.addGeometry([
    Part.LineSegment(V(201, -245, 0), V(245, -245, 0)),
    Part.ArcOfCircle(Part.Circle(V(245, -225, 0), V(0, 0, 1), 20), math.radians(-90), math.radians(90)),
    Part.LineSegment(V(245, -205, 0), V(201, -205, 0)),
    Part.ArcOfCircle(Part.Circle(V(201, -225, 0), V(0, 0, 1), 20), math.radians(90), math.radians(270)),
], False)
sketch17.addConstraint([
    Sketcher.Constraint("Tangent", 0, 2, 1, 1),
    Sketcher.Constraint("Tangent", 1, 2, 2, 1),
    Sketcher.Constraint("Tangent", 2, 2, 3, 1),
    Sketcher.Constraint("Tangent", 3, 2, 0, 1),
    Sketcher.Constraint("Horizontal", 0),
    Sketcher.Constraint("Horizontal", 2),
    Sketcher.Constraint("Radius", 1, 20.0),
    Sketcher.Constraint("DistanceX", 0, 1, 0, 2, 44.0),
    Sketcher.Constraint("DistanceX", -1, 1, 1, 3, 244.9),
    Sketcher.Constraint("DistanceY", 1, 3, -1, 1, 225.4),
])
sketch17.setExpression("Constraints[6]", "Params.sketch17_radius")
sketch17.setExpression("Constraints[7]", "Params.sketch17_width")
pocket14 = body.newObject("PartDesign::Pocket", "Pocket013")
pocket14.Profile = sketch17
pocket14.Type = "UpToFirst"

doc.recompute()
